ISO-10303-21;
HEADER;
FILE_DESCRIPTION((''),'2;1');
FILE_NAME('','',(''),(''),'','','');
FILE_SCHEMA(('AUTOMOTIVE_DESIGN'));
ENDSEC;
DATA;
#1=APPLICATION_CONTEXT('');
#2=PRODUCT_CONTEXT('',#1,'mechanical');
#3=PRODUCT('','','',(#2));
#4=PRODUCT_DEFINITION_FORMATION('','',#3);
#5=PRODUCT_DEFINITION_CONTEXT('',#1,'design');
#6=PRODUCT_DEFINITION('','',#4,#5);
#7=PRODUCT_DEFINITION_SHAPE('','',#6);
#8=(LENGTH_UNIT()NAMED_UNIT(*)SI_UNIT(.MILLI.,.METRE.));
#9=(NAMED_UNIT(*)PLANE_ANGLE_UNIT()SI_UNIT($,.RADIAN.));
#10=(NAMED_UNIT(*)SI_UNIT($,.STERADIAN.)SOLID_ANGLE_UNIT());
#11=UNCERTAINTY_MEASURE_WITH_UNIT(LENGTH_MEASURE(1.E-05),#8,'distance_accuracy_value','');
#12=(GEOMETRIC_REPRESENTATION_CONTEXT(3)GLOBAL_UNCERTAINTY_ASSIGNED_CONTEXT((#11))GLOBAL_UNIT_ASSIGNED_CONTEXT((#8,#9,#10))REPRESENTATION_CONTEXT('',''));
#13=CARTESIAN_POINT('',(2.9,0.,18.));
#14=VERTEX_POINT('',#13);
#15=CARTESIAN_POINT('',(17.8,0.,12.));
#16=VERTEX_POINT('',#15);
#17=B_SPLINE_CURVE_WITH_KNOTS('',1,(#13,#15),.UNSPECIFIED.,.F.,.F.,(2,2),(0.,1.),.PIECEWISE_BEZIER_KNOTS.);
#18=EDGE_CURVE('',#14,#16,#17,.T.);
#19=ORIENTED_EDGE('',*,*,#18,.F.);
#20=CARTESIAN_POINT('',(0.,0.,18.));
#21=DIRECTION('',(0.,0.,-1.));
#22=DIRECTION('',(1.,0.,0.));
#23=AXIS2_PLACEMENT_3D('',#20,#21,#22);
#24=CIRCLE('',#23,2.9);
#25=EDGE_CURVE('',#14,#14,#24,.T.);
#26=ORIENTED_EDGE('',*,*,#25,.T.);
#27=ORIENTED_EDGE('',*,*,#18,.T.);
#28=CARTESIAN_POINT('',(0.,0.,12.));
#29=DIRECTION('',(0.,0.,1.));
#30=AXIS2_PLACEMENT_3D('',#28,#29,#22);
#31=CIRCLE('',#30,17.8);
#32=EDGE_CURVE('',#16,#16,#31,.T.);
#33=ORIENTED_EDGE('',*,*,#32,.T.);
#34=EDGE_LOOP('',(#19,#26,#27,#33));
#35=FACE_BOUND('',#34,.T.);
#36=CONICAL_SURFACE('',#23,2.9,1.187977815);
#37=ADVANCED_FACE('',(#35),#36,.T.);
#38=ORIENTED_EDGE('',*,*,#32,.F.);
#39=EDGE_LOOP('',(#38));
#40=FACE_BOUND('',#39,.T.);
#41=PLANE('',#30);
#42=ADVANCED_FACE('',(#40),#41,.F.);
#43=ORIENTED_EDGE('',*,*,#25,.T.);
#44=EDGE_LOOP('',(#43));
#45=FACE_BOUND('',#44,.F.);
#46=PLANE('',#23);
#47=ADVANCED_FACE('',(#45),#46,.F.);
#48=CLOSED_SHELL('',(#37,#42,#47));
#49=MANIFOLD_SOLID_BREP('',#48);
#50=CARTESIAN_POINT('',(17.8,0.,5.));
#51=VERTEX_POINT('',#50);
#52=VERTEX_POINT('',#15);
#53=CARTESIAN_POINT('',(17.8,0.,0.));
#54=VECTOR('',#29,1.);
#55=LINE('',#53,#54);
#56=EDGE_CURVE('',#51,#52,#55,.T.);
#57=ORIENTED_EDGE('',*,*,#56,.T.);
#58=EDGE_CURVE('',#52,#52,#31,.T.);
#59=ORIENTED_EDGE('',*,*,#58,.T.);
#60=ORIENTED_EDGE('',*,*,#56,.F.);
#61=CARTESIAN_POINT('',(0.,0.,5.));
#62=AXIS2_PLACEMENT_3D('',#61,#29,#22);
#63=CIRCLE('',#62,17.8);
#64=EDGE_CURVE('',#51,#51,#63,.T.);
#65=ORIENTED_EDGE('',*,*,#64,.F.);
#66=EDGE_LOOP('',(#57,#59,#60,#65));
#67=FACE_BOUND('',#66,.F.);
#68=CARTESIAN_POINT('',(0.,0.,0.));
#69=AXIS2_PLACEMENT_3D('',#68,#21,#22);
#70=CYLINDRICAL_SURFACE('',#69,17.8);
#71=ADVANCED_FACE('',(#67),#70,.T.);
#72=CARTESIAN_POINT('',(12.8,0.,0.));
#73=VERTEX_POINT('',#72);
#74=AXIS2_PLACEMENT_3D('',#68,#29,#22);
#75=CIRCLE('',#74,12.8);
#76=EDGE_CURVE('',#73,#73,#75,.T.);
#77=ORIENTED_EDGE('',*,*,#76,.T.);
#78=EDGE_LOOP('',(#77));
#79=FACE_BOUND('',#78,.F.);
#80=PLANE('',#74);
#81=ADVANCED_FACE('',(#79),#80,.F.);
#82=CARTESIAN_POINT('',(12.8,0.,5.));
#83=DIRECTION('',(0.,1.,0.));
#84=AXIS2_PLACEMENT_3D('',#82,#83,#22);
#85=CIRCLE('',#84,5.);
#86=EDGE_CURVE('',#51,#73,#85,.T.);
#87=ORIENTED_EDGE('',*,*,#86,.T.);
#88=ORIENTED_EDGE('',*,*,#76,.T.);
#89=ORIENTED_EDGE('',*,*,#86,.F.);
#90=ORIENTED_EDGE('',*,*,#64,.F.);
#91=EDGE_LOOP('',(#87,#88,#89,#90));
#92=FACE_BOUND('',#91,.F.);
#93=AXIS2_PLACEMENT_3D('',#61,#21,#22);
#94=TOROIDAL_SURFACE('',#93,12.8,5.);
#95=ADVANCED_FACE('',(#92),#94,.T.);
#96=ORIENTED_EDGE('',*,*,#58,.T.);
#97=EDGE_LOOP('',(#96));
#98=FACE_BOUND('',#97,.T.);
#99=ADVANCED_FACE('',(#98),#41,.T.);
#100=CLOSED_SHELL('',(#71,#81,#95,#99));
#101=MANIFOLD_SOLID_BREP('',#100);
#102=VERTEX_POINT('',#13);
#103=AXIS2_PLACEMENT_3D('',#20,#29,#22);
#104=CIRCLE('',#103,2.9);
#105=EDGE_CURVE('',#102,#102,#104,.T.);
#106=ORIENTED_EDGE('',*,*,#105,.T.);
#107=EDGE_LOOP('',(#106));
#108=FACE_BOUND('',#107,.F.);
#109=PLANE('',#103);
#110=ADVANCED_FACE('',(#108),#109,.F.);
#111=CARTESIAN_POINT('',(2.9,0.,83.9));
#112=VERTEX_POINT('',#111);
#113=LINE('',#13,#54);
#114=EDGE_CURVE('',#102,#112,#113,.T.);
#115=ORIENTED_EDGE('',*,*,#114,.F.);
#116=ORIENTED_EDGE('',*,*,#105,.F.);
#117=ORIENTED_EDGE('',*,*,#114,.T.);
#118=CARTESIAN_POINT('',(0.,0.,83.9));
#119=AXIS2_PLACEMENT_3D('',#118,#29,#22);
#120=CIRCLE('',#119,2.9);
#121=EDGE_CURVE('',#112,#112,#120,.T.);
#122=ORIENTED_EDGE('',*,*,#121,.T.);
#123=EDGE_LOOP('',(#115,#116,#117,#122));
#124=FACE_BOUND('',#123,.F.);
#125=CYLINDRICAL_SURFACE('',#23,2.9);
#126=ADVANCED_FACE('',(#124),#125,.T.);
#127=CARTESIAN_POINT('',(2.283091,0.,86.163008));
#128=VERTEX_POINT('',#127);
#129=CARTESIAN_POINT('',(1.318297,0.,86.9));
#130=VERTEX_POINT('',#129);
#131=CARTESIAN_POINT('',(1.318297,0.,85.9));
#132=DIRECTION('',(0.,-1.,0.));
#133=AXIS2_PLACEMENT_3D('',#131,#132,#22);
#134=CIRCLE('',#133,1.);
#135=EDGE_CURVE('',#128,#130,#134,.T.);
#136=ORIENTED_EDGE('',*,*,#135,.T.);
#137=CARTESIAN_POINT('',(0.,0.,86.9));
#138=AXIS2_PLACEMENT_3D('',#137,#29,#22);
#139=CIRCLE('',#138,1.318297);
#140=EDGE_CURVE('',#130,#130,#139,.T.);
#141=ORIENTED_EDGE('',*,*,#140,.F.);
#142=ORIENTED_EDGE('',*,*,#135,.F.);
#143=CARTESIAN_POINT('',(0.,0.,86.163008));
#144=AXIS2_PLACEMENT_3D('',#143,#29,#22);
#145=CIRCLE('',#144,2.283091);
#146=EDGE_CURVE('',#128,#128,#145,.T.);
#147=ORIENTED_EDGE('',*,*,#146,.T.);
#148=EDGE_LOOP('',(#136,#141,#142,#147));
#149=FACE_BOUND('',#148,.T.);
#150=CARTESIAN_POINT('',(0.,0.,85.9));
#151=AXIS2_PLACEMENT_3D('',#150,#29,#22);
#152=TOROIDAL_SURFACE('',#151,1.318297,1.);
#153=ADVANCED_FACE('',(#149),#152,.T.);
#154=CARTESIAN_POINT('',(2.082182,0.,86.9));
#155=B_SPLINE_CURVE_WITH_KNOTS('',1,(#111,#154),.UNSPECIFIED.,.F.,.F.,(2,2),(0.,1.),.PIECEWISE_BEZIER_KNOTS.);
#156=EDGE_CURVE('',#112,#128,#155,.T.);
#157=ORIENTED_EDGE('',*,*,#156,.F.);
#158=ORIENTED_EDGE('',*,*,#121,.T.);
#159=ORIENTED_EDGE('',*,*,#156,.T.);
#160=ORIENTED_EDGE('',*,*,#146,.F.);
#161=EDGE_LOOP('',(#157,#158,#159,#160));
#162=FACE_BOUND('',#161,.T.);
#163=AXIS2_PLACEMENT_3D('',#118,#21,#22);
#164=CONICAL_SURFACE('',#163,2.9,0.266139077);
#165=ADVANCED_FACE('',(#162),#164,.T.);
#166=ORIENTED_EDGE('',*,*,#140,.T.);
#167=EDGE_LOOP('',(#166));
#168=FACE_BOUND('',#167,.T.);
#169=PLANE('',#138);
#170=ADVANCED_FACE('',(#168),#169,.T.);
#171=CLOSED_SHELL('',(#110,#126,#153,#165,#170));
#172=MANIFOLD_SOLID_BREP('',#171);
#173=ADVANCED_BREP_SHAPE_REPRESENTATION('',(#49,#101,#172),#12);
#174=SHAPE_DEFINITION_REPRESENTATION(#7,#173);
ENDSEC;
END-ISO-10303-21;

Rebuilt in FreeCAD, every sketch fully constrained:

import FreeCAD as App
import Part
import Sketcher


def edges_at(feature, points):
    """Names of the edges that pass closest to the given points."""
    edges = feature.Shape.Edges
    near = lambda p: min(range(len(edges)), key=lambda i: edges[i].distToShape(Part.Vertex(*p))[0])
    return sorted({f"Edge{near(p) + 1}" for p in points})

doc = App.newDocument("Part")
body = doc.addObject("PartDesign::Body", "Body")

sketch1 = body.newObject("Sketcher::SketchObject", "Sketch")
sketch1.AttachmentSupport = (doc.getObject("XY_Plane"), [""])
sketch1.MapMode = "FlatFace"
sketch1.addGeometry(Part.Circle(App.Vector(0, 0, 0), App.Vector(0, 0, 1), 17.8), False)
sketch1.addConstraint(Sketcher.Constraint("Coincident", 0, 3, -1, 1))
sketch1.addConstraint(Sketcher.Constraint("Diameter", 0, 35.6))
pad1 = body.newObject("PartDesign::Pad", "Pad")
pad1.Profile = sketch1
pad1.Length = 12
doc.recompute()

fillet = body.newObject("PartDesign::Fillet", "Fillet")
fillet.Base = (pad1, edges_at(pad1, [(-17.8, 0, 0)]))
fillet.Radius = 5
body2 = doc.addObject("PartDesign::Body", "Body001")

sketch2 = body2.newObject("Sketcher::SketchObject", "Sketch001")
sketch2.AttachmentSupport = (doc.getObject("XY_Plane001"), [""])
sketch2.MapMode = "FlatFace"
sketch2.AttachmentOffset = App.Placement(App.Vector(0, 0, 18), App.Rotation())
sketch2.addGeometry(Part.Circle(App.Vector(0, 0, 0), App.Vector(0, 0, 1), 2.9), False)
sketch2.addConstraint(Sketcher.Constraint("Coincident", 0, 3, -1, 1))
sketch2.addConstraint(Sketcher.Constraint("Diameter", 0, 5.8))
pad2 = body2.newObject("PartDesign::Pad", "Pad001")
pad2.Profile = sketch2
pad2.Length = 65.9

sketch3 = body2.newObject("Sketcher::SketchObject", "Sketch002")
sketch3.AttachmentSupport = (doc.getObject("XY_Plane001"), [""])
sketch3.MapMode = "FlatFace"
sketch3.AttachmentOffset = App.Placement(App.Vector(0, 0, 83.9), App.Rotation())
sketch3.addGeometry(Part.Circle(App.Vector(0, 0, 0), App.Vector(0, 0, 1), 2.9), False)
sketch3.addConstraint(Sketcher.Constraint("Coincident", 0, 3, -1, 1))
sketch3.addConstraint(Sketcher.Constraint("Diameter", 0, 5.8))

sketch4 = body2.newObject("Sketcher::SketchObject", "Sketch003")
sketch4.AttachmentSupport = (doc.getObject("XY_Plane001"), [""])
sketch4.MapMode = "FlatFace"
sketch4.AttachmentOffset = App.Placement(App.Vector(0, 0, 86.9), App.Rotation())
sketch4.addGeometry(Part.Circle(App.Vector(0, 0, 0), App.Vector(0, 0, 1), 2.082182), False)
sketch4.addConstraint(Sketcher.Constraint("Coincident", 0, 3, -1, 1))
sketch4.addConstraint(Sketcher.Constraint("Diameter", 0, 4.164365))

additiveloft = body2.newObject("PartDesign::AdditiveLoft", "AdditiveLoft")
additiveloft.Profile = sketch3
additiveloft.Sections = [sketch4]
doc.recompute()

fillet2 = body2.newObject("PartDesign::Fillet", "Fillet001")
fillet2.Base = (additiveloft, edges_at(additiveloft, [(-2.082, 0, 86.9)]))
fillet2.Radius = 1
body3 = doc.addObject("PartDesign::Body", "Body002")

sketch5 = body3.newObject("Sketcher::SketchObject", "Sketch004")
sketch5.AttachmentSupport = (doc.getObject("XY_Plane002"), [""])
sketch5.MapMode = "FlatFace"
sketch5.AttachmentOffset = App.Placement(App.Vector(0, 0, 18), App.Rotation())
sketch5.addGeometry(Part.Circle(App.Vector(0, 0, 0), App.Vector(0, 0, 1), 2.9), False)
sketch5.addConstraint(Sketcher.Constraint("Coincident", 0, 3, -1, 1))
sketch5.addConstraint(Sketcher.Constraint("Diameter", 0, 5.8))

sketch6 = body3.newObject("Sketcher::SketchObject", "Sketch005")
sketch6.AttachmentSupport = (doc.getObject("XY_Plane002"), [""])
sketch6.MapMode = "FlatFace"
sketch6.AttachmentOffset = App.Placement(App.Vector(0, 0, 12), App.Rotation())
sketch6.addGeometry(Part.Circle(App.Vector(0, 0, 0), App.Vector(0, 0, 1), 17.8), False)
sketch6.addConstraint(Sketcher.Constraint("Coincident", 0, 3, -1, 1))
sketch6.addConstraint(Sketcher.Constraint("Diameter", 0, 35.6))

additiveloft2 = body3.newObject("PartDesign::AdditiveLoft", "AdditiveLoft001")
additiveloft2.Profile = sketch5
additiveloft2.Sections = [sketch6]

doc.recompute()
